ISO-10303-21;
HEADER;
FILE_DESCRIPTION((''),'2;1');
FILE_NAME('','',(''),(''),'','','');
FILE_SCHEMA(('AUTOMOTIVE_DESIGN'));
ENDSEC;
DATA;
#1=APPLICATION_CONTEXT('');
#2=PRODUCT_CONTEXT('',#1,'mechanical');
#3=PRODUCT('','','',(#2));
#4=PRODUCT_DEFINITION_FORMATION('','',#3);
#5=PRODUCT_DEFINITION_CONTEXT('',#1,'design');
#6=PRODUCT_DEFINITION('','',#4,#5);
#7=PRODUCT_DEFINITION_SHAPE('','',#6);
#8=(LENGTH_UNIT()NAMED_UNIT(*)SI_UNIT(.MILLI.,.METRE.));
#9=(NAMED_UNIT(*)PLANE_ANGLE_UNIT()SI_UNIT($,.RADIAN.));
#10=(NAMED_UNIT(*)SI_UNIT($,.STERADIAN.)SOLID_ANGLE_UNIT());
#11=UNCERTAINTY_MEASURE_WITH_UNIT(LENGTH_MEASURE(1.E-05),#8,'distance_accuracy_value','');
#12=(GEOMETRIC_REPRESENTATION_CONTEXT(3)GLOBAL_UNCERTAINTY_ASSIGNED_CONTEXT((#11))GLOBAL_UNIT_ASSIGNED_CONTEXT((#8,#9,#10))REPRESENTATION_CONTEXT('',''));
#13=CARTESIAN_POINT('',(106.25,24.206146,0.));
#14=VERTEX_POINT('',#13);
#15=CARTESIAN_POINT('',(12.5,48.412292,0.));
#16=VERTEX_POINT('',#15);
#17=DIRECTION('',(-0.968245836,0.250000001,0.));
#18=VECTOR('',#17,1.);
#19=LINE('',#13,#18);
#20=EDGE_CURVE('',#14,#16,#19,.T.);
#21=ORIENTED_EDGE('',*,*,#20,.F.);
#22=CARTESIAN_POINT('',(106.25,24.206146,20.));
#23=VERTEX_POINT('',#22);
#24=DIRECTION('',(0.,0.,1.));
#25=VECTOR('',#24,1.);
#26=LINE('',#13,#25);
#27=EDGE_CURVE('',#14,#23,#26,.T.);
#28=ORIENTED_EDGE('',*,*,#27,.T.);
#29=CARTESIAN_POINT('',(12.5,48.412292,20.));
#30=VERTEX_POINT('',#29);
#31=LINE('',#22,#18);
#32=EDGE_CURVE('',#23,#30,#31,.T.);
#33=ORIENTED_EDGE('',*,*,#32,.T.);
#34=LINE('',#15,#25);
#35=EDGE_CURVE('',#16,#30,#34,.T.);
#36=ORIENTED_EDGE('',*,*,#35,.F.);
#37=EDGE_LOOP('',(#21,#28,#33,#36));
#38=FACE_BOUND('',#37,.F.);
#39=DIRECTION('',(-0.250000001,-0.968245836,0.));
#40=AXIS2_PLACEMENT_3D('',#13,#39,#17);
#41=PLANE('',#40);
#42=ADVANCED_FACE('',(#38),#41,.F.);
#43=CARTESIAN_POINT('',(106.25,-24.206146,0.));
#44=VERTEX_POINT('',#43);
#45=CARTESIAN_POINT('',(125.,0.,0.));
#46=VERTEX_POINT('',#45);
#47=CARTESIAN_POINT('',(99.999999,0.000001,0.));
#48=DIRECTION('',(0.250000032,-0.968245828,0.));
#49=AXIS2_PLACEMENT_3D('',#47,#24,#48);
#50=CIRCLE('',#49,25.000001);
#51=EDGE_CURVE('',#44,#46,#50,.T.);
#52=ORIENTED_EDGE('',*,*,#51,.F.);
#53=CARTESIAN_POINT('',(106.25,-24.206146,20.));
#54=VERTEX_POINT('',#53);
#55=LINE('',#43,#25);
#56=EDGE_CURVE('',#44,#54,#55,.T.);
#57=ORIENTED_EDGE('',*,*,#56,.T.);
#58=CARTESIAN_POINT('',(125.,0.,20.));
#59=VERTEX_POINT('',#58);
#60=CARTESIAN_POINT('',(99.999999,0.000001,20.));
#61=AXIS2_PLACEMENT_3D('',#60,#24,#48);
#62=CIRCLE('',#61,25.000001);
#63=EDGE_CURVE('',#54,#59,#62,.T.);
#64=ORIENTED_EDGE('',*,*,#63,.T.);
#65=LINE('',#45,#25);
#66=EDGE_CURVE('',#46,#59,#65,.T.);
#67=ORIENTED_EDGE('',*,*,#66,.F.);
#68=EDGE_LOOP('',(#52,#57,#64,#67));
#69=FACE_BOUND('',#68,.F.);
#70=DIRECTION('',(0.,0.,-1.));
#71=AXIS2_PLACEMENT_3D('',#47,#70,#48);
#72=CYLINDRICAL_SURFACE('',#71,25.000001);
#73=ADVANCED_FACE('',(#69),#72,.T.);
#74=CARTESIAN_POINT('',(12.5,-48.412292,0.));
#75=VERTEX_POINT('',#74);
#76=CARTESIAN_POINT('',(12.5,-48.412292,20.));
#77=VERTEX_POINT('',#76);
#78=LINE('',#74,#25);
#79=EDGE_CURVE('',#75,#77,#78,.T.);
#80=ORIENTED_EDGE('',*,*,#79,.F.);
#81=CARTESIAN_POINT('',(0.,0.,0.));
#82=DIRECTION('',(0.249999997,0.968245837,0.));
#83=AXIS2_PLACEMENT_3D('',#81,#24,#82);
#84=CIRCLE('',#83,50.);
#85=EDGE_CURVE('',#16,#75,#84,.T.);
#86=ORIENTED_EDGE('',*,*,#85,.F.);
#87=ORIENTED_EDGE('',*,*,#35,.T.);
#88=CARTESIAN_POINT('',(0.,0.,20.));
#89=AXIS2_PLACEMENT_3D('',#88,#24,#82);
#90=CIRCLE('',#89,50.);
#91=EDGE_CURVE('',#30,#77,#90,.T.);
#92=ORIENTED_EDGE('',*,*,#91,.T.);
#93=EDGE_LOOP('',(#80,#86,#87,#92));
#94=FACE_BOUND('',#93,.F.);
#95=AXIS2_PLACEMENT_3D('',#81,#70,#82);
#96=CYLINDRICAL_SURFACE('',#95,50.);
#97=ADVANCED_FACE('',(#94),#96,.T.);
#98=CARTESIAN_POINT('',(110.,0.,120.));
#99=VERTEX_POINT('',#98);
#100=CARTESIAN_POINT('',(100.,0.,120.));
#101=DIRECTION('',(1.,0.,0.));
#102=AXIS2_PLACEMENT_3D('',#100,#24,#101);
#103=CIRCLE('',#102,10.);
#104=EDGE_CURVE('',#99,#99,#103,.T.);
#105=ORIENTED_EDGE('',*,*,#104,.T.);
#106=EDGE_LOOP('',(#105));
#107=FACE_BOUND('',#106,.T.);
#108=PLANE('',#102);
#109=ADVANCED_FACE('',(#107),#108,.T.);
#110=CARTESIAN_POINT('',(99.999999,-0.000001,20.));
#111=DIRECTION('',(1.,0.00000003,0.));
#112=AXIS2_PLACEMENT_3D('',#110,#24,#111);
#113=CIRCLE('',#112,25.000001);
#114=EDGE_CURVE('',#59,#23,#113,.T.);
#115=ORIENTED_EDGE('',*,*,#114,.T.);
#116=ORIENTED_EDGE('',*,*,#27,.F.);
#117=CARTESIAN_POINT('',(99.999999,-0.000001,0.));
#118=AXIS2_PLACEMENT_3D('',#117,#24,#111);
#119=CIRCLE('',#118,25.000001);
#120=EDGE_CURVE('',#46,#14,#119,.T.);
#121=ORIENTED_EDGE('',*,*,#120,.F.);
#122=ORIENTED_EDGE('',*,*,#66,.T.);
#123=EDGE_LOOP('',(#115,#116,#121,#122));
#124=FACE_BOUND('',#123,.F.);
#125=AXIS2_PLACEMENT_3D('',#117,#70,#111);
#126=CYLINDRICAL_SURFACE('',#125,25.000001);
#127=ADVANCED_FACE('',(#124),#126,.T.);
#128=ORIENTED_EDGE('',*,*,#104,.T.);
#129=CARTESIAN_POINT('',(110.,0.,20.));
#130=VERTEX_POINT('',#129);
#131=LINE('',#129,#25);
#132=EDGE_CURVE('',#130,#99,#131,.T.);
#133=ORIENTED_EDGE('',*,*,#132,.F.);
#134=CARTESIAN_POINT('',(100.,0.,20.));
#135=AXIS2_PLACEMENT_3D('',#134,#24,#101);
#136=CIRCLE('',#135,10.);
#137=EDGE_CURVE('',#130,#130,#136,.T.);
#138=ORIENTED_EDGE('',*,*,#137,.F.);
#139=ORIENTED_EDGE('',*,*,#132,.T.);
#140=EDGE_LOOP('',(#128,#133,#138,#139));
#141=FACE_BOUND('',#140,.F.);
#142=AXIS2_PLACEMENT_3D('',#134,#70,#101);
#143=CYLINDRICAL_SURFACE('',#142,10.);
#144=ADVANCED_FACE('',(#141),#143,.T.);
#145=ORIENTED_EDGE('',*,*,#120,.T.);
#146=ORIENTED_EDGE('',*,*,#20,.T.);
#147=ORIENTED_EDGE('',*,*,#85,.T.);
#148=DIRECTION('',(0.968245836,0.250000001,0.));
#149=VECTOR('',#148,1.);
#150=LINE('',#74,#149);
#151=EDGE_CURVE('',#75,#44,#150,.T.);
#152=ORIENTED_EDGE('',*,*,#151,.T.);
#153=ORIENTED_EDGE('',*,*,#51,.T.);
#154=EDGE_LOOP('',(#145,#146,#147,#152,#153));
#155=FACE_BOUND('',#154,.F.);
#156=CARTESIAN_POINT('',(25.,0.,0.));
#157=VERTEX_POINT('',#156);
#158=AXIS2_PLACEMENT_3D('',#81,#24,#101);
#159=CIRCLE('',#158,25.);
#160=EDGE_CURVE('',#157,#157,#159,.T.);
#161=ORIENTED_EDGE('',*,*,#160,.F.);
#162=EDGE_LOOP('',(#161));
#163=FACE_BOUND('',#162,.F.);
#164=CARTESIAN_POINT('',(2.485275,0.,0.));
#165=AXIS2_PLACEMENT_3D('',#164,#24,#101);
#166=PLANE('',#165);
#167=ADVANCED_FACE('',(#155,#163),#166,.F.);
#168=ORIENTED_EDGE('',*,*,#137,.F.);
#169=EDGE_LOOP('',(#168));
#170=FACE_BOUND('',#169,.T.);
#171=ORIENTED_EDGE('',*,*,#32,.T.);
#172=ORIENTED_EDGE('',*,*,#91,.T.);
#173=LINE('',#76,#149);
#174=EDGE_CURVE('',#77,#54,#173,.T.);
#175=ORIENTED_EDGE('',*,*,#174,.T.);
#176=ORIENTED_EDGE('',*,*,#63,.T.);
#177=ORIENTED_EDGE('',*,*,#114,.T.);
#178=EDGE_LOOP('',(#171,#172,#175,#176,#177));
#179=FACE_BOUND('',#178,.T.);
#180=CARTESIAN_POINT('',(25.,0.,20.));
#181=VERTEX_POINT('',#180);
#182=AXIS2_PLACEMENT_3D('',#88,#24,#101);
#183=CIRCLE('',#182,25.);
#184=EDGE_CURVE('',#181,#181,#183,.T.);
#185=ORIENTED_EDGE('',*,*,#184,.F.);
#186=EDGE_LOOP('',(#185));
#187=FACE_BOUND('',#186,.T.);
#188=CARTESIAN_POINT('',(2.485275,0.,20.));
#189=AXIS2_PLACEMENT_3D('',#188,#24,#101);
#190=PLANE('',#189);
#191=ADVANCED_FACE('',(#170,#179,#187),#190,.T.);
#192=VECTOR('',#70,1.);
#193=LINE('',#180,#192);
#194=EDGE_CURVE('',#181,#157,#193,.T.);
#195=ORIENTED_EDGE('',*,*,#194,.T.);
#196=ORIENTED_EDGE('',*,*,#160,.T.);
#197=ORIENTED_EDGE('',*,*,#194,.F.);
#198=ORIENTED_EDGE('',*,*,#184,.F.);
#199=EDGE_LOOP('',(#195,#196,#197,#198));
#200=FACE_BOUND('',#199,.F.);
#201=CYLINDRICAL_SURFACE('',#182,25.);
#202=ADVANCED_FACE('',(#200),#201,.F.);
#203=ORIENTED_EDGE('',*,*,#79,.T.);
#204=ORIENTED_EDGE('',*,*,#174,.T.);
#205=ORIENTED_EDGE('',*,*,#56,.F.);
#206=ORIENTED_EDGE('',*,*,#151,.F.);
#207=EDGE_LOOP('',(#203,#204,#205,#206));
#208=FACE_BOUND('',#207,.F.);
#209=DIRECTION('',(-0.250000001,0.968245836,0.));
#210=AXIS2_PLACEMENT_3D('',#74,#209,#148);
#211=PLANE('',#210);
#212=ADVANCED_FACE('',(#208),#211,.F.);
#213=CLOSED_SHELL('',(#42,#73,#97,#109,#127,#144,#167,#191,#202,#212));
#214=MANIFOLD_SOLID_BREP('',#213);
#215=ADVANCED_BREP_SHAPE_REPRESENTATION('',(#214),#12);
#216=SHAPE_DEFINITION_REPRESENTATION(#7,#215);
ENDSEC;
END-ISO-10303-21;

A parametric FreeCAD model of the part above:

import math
import FreeCAD as App
import Part
import Sketcher

V = App.Vector

doc = App.newDocument("Part")
body = doc.addObject("PartDesign::Body", "Body")

sketch1 = body.newObject("Sketcher::SketchObject", "Sketch")
sketch1.AttachmentSupport = (doc.getObject("XY_Plane"), [""])
sketch1.MapMode = "FlatFace"
sketch1.addGeometry(Part.LineSegment(V(106, 24, 0), V(12, 48, 0)), False)
sketch1.addGeometry(Part.ArcOfCircle(Part.Circle(V(0, 0, 0), V(0, 0, 1), 50), math.radians(76), math.radians(284)), False)
sketch1.addGeometry(Part.LineSegment(V(12, -48, 0), V(106, -24, 0)), False)
sketch1.addGeometry(Part.ArcOfCircle(Part.Circle(V(100, 0, 0), V(0, 0, 1), 25), math.radians(-76), math.radians(0)), False)
sketch1.addGeometry(Part.ArcOfCircle(Part.Circle(V(100, 0, 0), V(0, 0, 1), 25), math.radians(0), math.radians(76)), False)
sketch1.addConstraint(Sketcher.Constraint("Tangent", 0, 2, 1, 1))
sketch1.addConstraint(Sketcher.Constraint("Tangent", 1, 2, 2, 1))
sketch1.addConstraint(Sketcher.Constraint("Tangent", 2, 2, 3, 1))
sketch1.addConstraint(Sketcher.Constraint("Tangent", 3, 2, 4, 1))
sketch1.addConstraint(Sketcher.Constraint("Tangent", 4, 2, 0, 1))
sketch1.addConstraint(Sketcher.Constraint("Coincident", 1, 3, -1, 1))
sketch1.addConstraint(Sketcher.Constraint("Equal", 3, 4))
sketch1.addConstraint(Sketcher.Constraint("PointOnObject", 3, 3, -1))
sketch1.addConstraint(Sketcher.Constraint("PointOnObject", 3, 2, -1))
sketch1.addConstraint(Sketcher.Constraint("Radius", 1, 50.0))
sketch1.addConstraint(Sketcher.Constraint("Radius", 3, 25.000001))
sketch1.addConstraint(Sketcher.Constraint("DistanceX", -1, 1, 3, 3, 99.999999))
pad1 = body.newObject("PartDesign::Pad", "Pad")
pad1.Profile = sketch1
pad1.Length = 20

sketch2 = body.newObject("Sketcher::SketchObject", "Sketch001")
sketch2.AttachmentSupport = (doc.getObject("XY_Plane"), [""])
sketch2.MapMode = "FlatFace"
sketch2.AttachmentOffset = App.Placement(V(0, 0, 20), App.Rotation())
sketch2.addGeometry(Part.Circle(V(0, 0, 0), V(0, 0, 1), 25), False)
sketch2.addConstraint(Sketcher.Constraint("Coincident", 0, 3, -1, 1))
sketch2.addConstraint(Sketcher.Constraint("Diameter", 0, 50.0))
pocket1 = body.newObject("PartDesign::Pocket", "Pocket")
pocket1.Profile = sketch2
pocket1.Type = "ThroughAll"

sketch3 = body.newObject("Sketcher::SketchObject", "Sketch002")
sketch3.AttachmentSupport = (doc.getObject("XY_Plane"), [""])
sketch3.MapMode = "FlatFace"
sketch3.AttachmentOffset = App.Placement(V(0, 0, 20), App.Rotation())
sketch3.addGeometry(Part.Circle(V(100, 0, 0), V(0, 0, 1), 10), False)
sketch3.addConstraint(Sketcher.Constraint("PointOnObject", 0, 3, -1))
sketch3.addConstraint(Sketcher.Constraint("Diameter", 0, 20.0))
sketch3.addConstraint(Sketcher.Constraint("DistanceX", -1, 1, 0, 3, 100.0))
pad2 = body.newObject("PartDesign::Pad", "Pad001")
pad2.Profile = sketch3
pad2.Length = 100

doc.recompute()
